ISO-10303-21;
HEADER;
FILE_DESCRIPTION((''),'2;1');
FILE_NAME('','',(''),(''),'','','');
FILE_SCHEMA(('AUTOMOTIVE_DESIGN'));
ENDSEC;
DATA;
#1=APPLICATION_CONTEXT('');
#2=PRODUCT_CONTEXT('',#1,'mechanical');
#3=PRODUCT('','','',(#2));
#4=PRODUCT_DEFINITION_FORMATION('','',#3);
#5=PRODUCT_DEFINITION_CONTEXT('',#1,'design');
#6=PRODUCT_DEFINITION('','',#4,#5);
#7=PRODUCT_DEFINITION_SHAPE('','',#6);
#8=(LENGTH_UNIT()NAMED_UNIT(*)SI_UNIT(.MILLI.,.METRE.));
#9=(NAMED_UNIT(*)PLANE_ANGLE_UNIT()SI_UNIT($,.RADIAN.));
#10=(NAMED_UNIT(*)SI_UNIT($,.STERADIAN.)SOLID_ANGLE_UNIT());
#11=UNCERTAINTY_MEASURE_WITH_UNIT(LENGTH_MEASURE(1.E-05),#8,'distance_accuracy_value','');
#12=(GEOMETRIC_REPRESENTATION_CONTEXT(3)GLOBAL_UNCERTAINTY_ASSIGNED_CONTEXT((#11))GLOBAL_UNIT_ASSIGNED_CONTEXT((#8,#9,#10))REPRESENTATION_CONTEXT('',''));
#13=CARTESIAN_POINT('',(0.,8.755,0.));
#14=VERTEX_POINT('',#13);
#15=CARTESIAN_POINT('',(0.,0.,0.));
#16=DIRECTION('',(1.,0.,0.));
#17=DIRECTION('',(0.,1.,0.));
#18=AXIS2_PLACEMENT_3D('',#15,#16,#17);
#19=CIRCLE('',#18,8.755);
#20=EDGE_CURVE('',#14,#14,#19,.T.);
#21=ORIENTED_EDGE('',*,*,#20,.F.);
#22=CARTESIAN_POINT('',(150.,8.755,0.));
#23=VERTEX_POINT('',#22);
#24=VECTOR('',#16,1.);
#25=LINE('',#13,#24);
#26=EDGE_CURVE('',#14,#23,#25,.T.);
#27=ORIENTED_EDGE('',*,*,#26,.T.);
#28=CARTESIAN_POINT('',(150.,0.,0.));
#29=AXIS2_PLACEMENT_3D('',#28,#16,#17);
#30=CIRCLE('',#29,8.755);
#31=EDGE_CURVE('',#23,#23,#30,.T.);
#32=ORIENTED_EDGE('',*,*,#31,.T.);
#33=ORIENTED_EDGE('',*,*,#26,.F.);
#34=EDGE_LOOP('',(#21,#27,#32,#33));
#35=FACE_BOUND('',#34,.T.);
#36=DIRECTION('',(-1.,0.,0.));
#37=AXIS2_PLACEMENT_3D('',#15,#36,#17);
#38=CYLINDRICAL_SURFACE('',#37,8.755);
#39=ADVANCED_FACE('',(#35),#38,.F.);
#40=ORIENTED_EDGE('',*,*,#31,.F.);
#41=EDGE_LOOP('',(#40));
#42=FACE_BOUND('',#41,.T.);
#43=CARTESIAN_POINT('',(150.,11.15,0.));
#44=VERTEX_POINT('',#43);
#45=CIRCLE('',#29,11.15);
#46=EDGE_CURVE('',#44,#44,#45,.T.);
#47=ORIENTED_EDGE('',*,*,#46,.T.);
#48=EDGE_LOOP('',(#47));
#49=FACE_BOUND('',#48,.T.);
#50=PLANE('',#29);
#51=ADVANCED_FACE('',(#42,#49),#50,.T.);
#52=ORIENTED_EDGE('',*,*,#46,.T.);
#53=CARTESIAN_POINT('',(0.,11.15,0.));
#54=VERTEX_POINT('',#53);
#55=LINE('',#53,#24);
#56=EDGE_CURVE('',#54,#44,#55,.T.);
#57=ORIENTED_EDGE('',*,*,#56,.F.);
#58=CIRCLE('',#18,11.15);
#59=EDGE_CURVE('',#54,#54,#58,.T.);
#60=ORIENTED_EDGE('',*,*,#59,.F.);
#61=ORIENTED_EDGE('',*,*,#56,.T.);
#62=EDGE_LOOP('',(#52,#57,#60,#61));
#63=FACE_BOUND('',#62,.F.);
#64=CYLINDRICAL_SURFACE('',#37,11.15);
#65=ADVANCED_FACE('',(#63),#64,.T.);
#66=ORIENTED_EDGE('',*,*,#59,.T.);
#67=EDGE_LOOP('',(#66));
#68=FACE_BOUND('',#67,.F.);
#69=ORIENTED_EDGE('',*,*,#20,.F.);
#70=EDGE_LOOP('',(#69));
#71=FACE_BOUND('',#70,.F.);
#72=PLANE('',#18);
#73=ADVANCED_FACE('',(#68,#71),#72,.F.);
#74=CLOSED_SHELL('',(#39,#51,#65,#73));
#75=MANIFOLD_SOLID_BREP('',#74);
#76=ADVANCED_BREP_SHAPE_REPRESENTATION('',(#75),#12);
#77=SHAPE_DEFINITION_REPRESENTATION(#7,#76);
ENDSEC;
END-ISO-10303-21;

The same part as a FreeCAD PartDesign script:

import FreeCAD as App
import Part
import Sketcher

V = App.Vector

doc = App.newDocument("Part")
body = doc.addObject("PartDesign::Body", "Body")

# Sketch on YZ plane
sketch1 = body.newObject("Sketcher::SketchObject", "Sketch")
sketch1.AttachmentSupport = (doc.getObject("YZ_Plane"), [""])
sketch1.MapMode = "FlatFace"
sketch1.addGeometry([
    Part.Circle(V(0, 0, 0), V(0, 0, 1), 11),
    Part.Circle(V(0, 0, 0), V(0, 0, 1), 9),
], False)
sketch1.addConstraint([
    Sketcher.Constraint("Coincident", 0, 3, -1, 1),
    Sketcher.Constraint("Coincident", 1, 3, -1, 1),
    Sketcher.Constraint("Diameter", 0, 22.3),
    Sketcher.Constraint("Diameter", 1, 17.51),
])
pad1 = body.newObject("PartDesign::Pad", "Pad")
pad1.Profile = sketch1
pad1.Length = 150

doc.recompute()
